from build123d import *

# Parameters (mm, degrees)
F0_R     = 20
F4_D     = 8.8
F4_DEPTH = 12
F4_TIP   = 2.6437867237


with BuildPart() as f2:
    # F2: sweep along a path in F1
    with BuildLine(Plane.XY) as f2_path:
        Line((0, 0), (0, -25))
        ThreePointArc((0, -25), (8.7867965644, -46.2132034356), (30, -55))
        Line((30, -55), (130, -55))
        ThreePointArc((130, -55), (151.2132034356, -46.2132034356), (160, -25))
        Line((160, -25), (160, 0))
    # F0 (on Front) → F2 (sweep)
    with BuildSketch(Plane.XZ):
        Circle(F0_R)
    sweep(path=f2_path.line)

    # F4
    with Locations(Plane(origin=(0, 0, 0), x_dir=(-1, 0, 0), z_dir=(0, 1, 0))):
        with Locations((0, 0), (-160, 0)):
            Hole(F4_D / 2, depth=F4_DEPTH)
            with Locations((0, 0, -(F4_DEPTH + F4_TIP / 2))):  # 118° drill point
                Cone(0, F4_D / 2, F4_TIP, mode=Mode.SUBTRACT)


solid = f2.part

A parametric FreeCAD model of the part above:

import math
import FreeCAD as App
import Part
import Sketcher
from FreeCAD import Vector

doc = App.newDocument("Part")
body = doc.addObject("PartDesign::Body", "Body")

# Sketch on XZ plane
sketch1 = body.newObject("Sketcher::SketchObject", "Sketch")
sketch1.AttachmentSupport = (doc.getObject("XZ_Plane"), [""])
sketch1.MapMode = "FlatFace"
sketch1.addGeometry(Part.Circle(Vector(0, 0, 0), Vector(0, 0, 1), 20), False)
sketch1.addConstraint(Sketcher.Constraint("Coincident", 0, 3, -1, 1))
sketch1.addConstraint(Sketcher.Constraint("Diameter", 0, 40.0))

# Sketch on XY plane
sketch2 = body.newObject("Sketcher::SketchObject", "Sketch001")
sketch2.AttachmentSupport = (doc.getObject("XY_Plane"), [""])
sketch2.MapMode = "FlatFace"
sketch2.addGeometry(Part.LineSegment(Vector(0, 0, 0), Vector(0, -25, 0)), False)
sketch2.addGeometry(Part.ArcOfCircle(Part.Circle(Vector(30, -25, 0), Vector(0, 0, 1), 30), math.radians(180), math.radians(270)), False)
sketch2.addGeometry(Part.LineSegment(Vector(30, -55, 0), Vector(130, -55, 0)), False)
sketch2.addGeometry(Part.ArcOfCircle(Part.Circle(Vector(130, -25, 0), Vector(0, 0, 1), 30), math.radians(-90), math.radians(0)), False)
sketch2.addGeometry(Part.LineSegment(Vector(160, -25, 0), Vector(160, 0, 0)), False)
sketch2.addConstraint(Sketcher.Constraint("Tangent", 0, 2, 1, 1))
sketch2.addConstraint(Sketcher.Constraint("Tangent", 1, 2, 2, 1))
sketch2.addConstraint(Sketcher.Constraint("Tangent", 2, 2, 3, 1))
sketch2.addConstraint(Sketcher.Constraint("Tangent", 3, 2, 4, 1))
sketch2.addConstraint(Sketcher.Constraint("Vertical", 0))
sketch2.addConstraint(Sketcher.Constraint("Horizontal", 2))
sketch2.addConstraint(Sketcher.Constraint("Vertical", 4))
sketch2.addConstraint(Sketcher.Constraint("Coincident", 0, 1, -1, 1))
sketch2.addConstraint(Sketcher.Constraint("Equal", 1, 3))
sketch2.addConstraint(Sketcher.Constraint("PointOnObject", 4, 2, -1))
sketch2.addConstraint(Sketcher.Constraint("Radius", 1, 30.0))
sketch2.addConstraint(Sketcher.Constraint("DistanceX", 2, 1, 2, 2, 100.0))
sketch2.addConstraint(Sketcher.Constraint("DistanceY", 0, 2, 0, 1, 25.0))
doc.recompute()

additivepipe = body.newObject("PartDesign::AdditivePipe", "AdditivePipe")
additivepipe.Profile = sketch1
additivepipe.Spine = (sketch2, ["Edge1", "Edge2", "Edge3", "Edge4", "Edge5"])

# Sketch on XZ plane
sketch3 = body.newObject("Sketcher::SketchObject", "Sketch002")
sketch3.AttachmentSupport = (doc.getObject("XZ_Plane"), [""])
sketch3.MapMode = "FlatFace"
sketch3.addGeometry(Part.Circle(Vector(0, 0, 0), Vector(0, 0, 1), 4.4), False)
sketch3.addGeometry(Part.Circle(Vector(160, 0, 0), Vector(0, 0, 1), 4.4), False)
sketch3.addConstraint(Sketcher.Constraint("Coincident", 0, 3, -1, 1))
sketch3.addConstraint(Sketcher.Constraint("Equal", 0, 1))
sketch3.addConstraint(Sketcher.Constraint("PointOnObject", 1, 3, -1))
sketch3.addConstraint(Sketcher.Constraint("Diameter", 0, 8.8))
sketch3.addConstraint(Sketcher.Constraint("DistanceX", -1, 1, 1, 3, 160.0))
doc.recompute()
hole = body.newObject("PartDesign::Hole", "Hole")
hole.Profile = sketch3
hole.ThreadType = "None"
hole.Diameter = 8.8
hole.DepthType = "Dimension"
hole.Depth = 12
hole.DrillPoint = "Angled"
hole.DrillPointAngle = 118
hole.Reversed = True

doc.recompute()
